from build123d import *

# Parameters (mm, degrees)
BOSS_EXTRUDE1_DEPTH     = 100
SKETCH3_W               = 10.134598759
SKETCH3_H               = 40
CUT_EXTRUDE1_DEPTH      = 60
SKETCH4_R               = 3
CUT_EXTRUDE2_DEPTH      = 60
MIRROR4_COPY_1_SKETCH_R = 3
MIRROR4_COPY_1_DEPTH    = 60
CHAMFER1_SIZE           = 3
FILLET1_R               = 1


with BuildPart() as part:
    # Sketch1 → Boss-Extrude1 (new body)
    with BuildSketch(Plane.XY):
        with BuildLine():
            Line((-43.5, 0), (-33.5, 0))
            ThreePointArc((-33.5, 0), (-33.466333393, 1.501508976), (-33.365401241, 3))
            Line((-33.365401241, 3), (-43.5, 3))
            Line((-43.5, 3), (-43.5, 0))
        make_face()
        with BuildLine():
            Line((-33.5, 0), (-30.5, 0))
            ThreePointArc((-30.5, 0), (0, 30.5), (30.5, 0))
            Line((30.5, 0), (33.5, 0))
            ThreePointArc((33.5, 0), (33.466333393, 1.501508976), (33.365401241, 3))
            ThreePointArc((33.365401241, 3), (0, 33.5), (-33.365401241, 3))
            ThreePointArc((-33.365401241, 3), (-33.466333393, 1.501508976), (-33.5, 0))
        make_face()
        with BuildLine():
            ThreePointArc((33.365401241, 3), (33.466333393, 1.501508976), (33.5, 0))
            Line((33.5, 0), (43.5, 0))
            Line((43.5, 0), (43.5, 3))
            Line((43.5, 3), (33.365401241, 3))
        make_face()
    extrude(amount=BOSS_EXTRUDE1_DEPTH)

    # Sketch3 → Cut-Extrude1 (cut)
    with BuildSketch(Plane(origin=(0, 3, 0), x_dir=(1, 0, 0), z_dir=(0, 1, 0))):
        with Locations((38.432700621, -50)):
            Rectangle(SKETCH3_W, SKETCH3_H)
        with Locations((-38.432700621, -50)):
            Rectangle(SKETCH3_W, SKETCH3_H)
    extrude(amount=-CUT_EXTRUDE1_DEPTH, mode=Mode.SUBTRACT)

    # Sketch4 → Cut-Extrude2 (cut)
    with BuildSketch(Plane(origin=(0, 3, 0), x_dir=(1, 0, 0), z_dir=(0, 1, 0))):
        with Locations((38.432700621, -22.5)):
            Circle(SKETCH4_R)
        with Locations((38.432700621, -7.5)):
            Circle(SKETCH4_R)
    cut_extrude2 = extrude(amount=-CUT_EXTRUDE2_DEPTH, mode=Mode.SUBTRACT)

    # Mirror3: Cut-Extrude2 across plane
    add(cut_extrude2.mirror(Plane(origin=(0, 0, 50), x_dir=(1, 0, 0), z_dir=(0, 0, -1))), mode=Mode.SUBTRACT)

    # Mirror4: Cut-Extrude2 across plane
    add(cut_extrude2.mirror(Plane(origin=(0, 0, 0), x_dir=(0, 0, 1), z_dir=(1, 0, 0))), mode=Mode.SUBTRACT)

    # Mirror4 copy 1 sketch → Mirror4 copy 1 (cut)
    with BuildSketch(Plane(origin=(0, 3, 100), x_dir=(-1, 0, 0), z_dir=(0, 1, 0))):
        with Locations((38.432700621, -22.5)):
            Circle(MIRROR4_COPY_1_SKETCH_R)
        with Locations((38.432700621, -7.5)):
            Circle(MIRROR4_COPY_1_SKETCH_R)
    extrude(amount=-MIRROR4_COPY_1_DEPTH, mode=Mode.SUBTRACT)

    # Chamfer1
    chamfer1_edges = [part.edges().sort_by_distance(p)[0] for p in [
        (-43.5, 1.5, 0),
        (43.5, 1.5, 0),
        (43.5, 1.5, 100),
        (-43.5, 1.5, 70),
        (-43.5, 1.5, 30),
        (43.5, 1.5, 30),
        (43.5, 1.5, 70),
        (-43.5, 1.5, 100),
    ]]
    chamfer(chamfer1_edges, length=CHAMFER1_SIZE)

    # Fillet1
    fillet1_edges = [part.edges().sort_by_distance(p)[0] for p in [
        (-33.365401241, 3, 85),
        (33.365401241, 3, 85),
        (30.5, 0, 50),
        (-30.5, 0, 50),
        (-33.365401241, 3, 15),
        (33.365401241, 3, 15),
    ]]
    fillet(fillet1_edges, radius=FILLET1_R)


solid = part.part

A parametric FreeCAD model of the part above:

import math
import FreeCAD as App
import Part
import Sketcher
from FreeCAD import Vector
Q = App.Units.Quantity


def edges_at(feature, points):
    """Names of the edges that pass closest to the given points."""
    edges = feature.Shape.Edges
    near = lambda p: min(range(len(edges)), key=lambda i: edges[i].distToShape(Part.Vertex(*p))[0])
    return sorted({f"Edge{near(p) + 1}" for p in points})

doc = App.newDocument("Part")
body = doc.addObject("PartDesign::Body", "Body")

# Sketch on XY plane
sketch1 = doc.addObject("Sketcher::SketchObject", "Sketch")
body.addObject(sketch1)
sketch1.AttachmentSupport = (doc.XY_Plane, [""])
sketch1.MapMode = "FlatFace"
sketch1.addGeometry([
    Part.LineSegment(Vector(-43.5, 0, 0), Vector(-30.5, 0, 0)),  # 0
    Part.ArcOfCircle(Part.Circle(Vector(0, 0, 0), Vector(0, 0, 1), 30.5), math.radians(0), math.radians(180)),  # 1
    Part.LineSegment(Vector(30.5, 0, 0), Vector(43.5, 0, 0)),  # 2
    Part.LineSegment(Vector(43.5, 0, 0), Vector(43.5, 3, 0)),  # 3
    Part.LineSegment(Vector(43.5, 3, 0), Vector(33.365401, 3, 0)),  # 4
    Part.ArcOfCircle(Part.Circle(Vector(0, 0, 0), Vector(0, 0, 1), 33.5), math.radians(5.137848), math.radians(174.862152)),  # 5
    Part.LineSegment(Vector(-33.365401, 3, 0), Vector(-43.5, 3, 0)),  # 6
    Part.LineSegment(Vector(-43.5, 3, 0), Vector(-43.5, 0, 0)),  # 7
], False)
sketch1.addConstraint([
    Sketcher.Constraint("Coincident", 0, 2, 1, 2),
    Sketcher.Constraint("Coincident", 1, 1, 2, 1),
    Sketcher.Constraint("Coincident", 2, 2, 3, 1),
    Sketcher.Constraint("Coincident", 3, 2, 4, 1),
    Sketcher.Constraint("Coincident", 4, 2, 5, 1),
    Sketcher.Constraint("Coincident", 5, 2, 6, 1),
    Sketcher.Constraint("Coincident", 6, 2, 7, 1),
    Sketcher.Constraint("Coincident", 7, 2, 0, 1),
    Sketcher.Constraint("Horizontal", 0),
    Sketcher.Constraint("Horizontal", 2),
    Sketcher.Constraint("Vertical", 3),
    Sketcher.Constraint("Horizontal", 4),
    Sketcher.Constraint("Horizontal", 6),
    Sketcher.Constraint("Vertical", 7),
    Sketcher.Constraint("Coincident", 1, 3, -1, 1),
    Sketcher.Constraint("Coincident", 5, 3, -1, 1),
    Sketcher.Constraint("Symmetric", 2, 2, 7, 2, -1, 1),
    Sketcher.Constraint("PointOnObject", 0, 2, -1),
    Sketcher.Constraint("Horizontal", 4, 2, 5, 2),
    Sketcher.Constraint("Radius", 1, Q("30.5 mm")),
    Sketcher.Constraint("Radius", 5, Q("33.5 mm")),
    Sketcher.Constraint("DistanceX", 0, 1, 0, 2, Q("13 mm")),
    Sketcher.Constraint("DistanceY", 3, 1, 3, 2, Q("3 mm")),
])
pad1 = doc.addObject("PartDesign::Pad", "Pad")
body.addObject(pad1)
pad1.Profile = sketch1
pad1.Length = 100

# Sketch on XZ plane
sketch2 = doc.addObject("Sketcher::SketchObject", "Sketch001")
body.addObject(sketch2)
sketch2.AttachmentSupport = (doc.XZ_Plane, [""])
sketch2.MapMode = "FlatFace"
sketch2.AttachmentOffset = App.Placement(Vector(0, 0, -3), App.Rotation())
sketch2.addGeometry([
    Part.LineSegment(Vector(33.365401, 30, 0), Vector(33.365401, 70, 0)),  # 0
    Part.LineSegment(Vector(33.365401, 70, 0), Vector(43.5, 70, 0)),  # 1
    Part.LineSegment(Vector(43.5, 70, 0), Vector(43.5, 30, 0)),  # 2
    Part.LineSegment(Vector(43.5, 30, 0), Vector(33.365401, 30, 0)),  # 3
    Part.LineSegment(Vector(-43.5, 30, 0), Vector(-43.5, 70, 0)),  # 4
    Part.LineSegment(Vector(-43.5, 70, 0), Vector(-33.365401, 70, 0)),  # 5
    Part.LineSegment(Vector(-33.365401, 70, 0), Vector(-33.365401, 30, 0)),  # 6
    Part.LineSegment(Vector(-33.365401, 30, 0), Vector(-43.5, 30, 0)),  # 7
], False)
sketch2.addConstraint([
    Sketcher.Constraint("Coincident", 0, 2, 1, 1),
    Sketcher.Constraint("Coincident", 1, 2, 2, 1),
    Sketcher.Constraint("Coincident", 2, 2, 3, 1),
    Sketcher.Constraint("Coincident", 3, 2, 0, 1),
    Sketcher.Constraint("Coincident", 4, 2, 5, 1),
    Sketcher.Constraint("Coincident", 5, 2, 6, 1),
    Sketcher.Constraint("Coincident", 6, 2, 7, 1),
    Sketcher.Constraint("Coincident", 7, 2, 4, 1),
    Sketcher.Constraint("Vertical", 0),
    Sketcher.Constraint("Horizontal", 1),
    Sketcher.Constraint("Vertical", 2),
    Sketcher.Constraint("Horizontal", 3),
    Sketcher.Constraint("Vertical", 4),
    Sketcher.Constraint("Horizontal", 5),
    Sketcher.Constraint("Vertical", 6),
    Sketcher.Constraint("Horizontal", 7),
    Sketcher.Constraint("Symmetric", 1, 2, 4, 2, -2),
    Sketcher.Constraint("Symmetric", 3, 2, 6, 2, -2),
    Sketcher.Constraint("DistanceY", 0, 1, 0, 2, Q("40 mm")),
    Sketcher.Constraint("DistanceY", -1, 1, 0, 2, Q("70 mm")),
    Sketcher.Constraint("DistanceX", 4, 2, 1, 2, Q("87 mm")),
    Sketcher.Constraint("DistanceX", 1, 1, 1, 2, Q("10.134599 mm")),
])
pocket1 = doc.addObject("PartDesign::Pocket", "Pocket")
body.addObject(pocket1)
pocket1.Profile = sketch2
pocket1.Length = 60
pocket1.Reversed = True

# Sketch on XZ plane
sketch3 = doc.addObject("Sketcher::SketchObject", "Sketch002")
body.addObject(sketch3)
sketch3.AttachmentSupport = (doc.XZ_Plane, [""])
sketch3.MapMode = "FlatFace"
sketch3.AttachmentOffset = App.Placement(Vector(0, 0, -3), App.Rotation())
sketch3.addGeometry([
    Part.Circle(Vector(38.432701, 22.5, 0), Vector(0, 0, 1), 3),
    Part.Circle(Vector(38.432701, 7.5, 0), Vector(0, 0, 1), 3),
], False)
sketch3.addConstraint([
    Sketcher.Constraint("Equal", 0, 1),
    Sketcher.Constraint("Vertical", 0, 3, 1, 3),
    Sketcher.Constraint("Diameter", 0, Q("6 mm")),
    Sketcher.Constraint("DistanceY", 1, 3, 0, 3, Q("15 mm")),
    Sketcher.Constraint("DistanceY", -1, 1, 0, 3, Q("22.5 mm")),
    Sketcher.Constraint("DistanceX", -1, 1, 0, 3, Q("38.432701 mm")),
])
pocket2 = doc.addObject("PartDesign::Pocket", "Pocket001")
body.addObject(pocket2)
pocket2.Profile = sketch3
pocket2.Length = 60
pocket2.Reversed = True
doc.recompute()

datumplane = doc.addObject("PartDesign::Plane", "DatumPlane")
body.addObject(datumplane)
datumplane.AttachmentSupport = (doc.XY_Plane, [""])
datumplane.MapMode = "FlatFace"
datumplane.AttachmentOffset = App.Placement(Vector(0, 0, 50), App.Rotation())
mirrored = doc.addObject("PartDesign::Mirrored", "Mirrored")
body.addObject(mirrored)
mirrored.Originals = [pocket2]
mirrored.MirrorPlane = (datumplane, [""])
body.Tip = mirrored
doc.recompute()

mirrored2 = doc.addObject("PartDesign::Mirrored", "Mirrored001")
body.addObject(mirrored2)
mirrored2.Originals = [pocket2]
mirrored2.MirrorPlane = (doc.YZ_Plane, [""])
body.Tip = mirrored2

# Sketch on XZ plane
sketch4 = doc.addObject("Sketcher::SketchObject", "Sketch003")
body.addObject(sketch4)
sketch4.AttachmentSupport = (doc.XZ_Plane, [""])
sketch4.MapMode = "FlatFace"
sketch4.AttachmentOffset = App.Placement(Vector(0, 0, -3), App.Rotation())
sketch4.addGeometry([
    Part.Circle(Vector(-38.432701, 77.5, 0), Vector(0, 0, 1), 3),
    Part.Circle(Vector(-38.432701, 92.5, 0), Vector(0, 0, 1), 3),
], False)
sketch4.addConstraint([
    Sketcher.Constraint("Equal", 0, 1),
    Sketcher.Constraint("Vertical", 0, 3, 1, 3),
    Sketcher.Constraint("Diameter", 0, Q("6 mm")),
    Sketcher.Constraint("DistanceY", 0, 3, 1, 3, Q("15 mm")),
    Sketcher.Constraint("DistanceY", -1, 1, 0, 3, Q("77.5 mm")),
    Sketcher.Constraint("DistanceX", 0, 3, -1, 1, Q("38.432701 mm")),
])
pocket3 = doc.addObject("PartDesign::Pocket", "Pocket002")
body.addObject(pocket3)
pocket3.Profile = sketch4
pocket3.Length = 60
pocket3.Reversed = True
doc.recompute()

chamfer = doc.addObject("PartDesign::Chamfer", "Chamfer")
body.addObject(chamfer)
chamfer.Base = (pocket3, edges_at(pocket3, [
    (-43.5, 1.5, 0),
    (43.5, 1.5, 0),
    (43.5, 1.5, 100),
    (-43.5, 1.5, 70),
    (-43.5, 1.5, 30),
    (43.5, 1.5, 30),
    (43.5, 1.5, 70),
    (-43.5, 1.5, 100),
]))
chamfer.Size = 3
doc.recompute()

fillet = doc.addObject("PartDesign::Fillet", "Fillet")
body.addObject(fillet)
fillet.Base = (chamfer, edges_at(chamfer, [
    (-33.365, 3, 85),
    (33.365, 3, 85),
    (30.5, 0, 50),
    (-30.5, 0, 50),
    (-33.365, 3, 15),
    (33.365, 3, 15),
]))
fillet.Radius = 1

doc.recompute()
